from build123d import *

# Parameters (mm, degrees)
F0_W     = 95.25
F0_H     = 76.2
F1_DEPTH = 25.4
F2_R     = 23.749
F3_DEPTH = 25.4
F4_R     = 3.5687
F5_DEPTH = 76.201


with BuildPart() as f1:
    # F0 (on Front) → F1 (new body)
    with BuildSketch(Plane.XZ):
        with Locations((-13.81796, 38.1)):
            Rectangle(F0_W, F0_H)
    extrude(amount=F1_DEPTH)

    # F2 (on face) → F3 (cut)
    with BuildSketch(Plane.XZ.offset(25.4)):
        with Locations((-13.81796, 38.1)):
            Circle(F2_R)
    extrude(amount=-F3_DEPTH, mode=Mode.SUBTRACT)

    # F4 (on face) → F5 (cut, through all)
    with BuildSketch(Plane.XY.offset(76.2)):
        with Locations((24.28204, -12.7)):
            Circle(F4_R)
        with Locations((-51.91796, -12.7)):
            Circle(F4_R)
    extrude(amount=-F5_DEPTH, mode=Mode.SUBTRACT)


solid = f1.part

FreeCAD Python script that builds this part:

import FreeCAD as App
import Part
import Sketcher
Q = App.Units.Quantity


def add_polygon(sketch, points):
    """Adds a closed chain of lines whose ends are joined by coincident constraints."""
    first, n = sketch.GeometryCount, len(points)
    for a, b in zip(points, points[1:] + points[:1]):
        sketch.addGeometry(Part.LineSegment(App.Vector(*a, 0), App.Vector(*b, 0)), False)
    for i in range(n):
        sketch.addConstraint(Sketcher.Constraint("Coincident", first + i, 2, first + (i + 1) % n, 1))

doc = App.newDocument("Part")
body = doc.addObject("PartDesign::Body", "Body")

# Sketch on XZ plane
sketch1 = body.newObject("Sketcher::SketchObject", "Sketch")
sketch1.AttachmentSupport = (doc.getObject("XZ_Plane"), [""])
sketch1.MapMode = "FlatFace"
add_polygon(sketch1, [(-61, 76), (-61, 0), (34, 0), (34, 76)])  # lines 0-3
sketch1.addConstraint(Sketcher.Constraint("Vertical", 0))
sketch1.addConstraint(Sketcher.Constraint("Horizontal", 1))
sketch1.addConstraint(Sketcher.Constraint("Vertical", 2))
sketch1.addConstraint(Sketcher.Constraint("Horizontal", 3))
sketch1.addConstraint(Sketcher.Constraint("PointOnObject", 0, 2, -1))
sketch1.addConstraint(Sketcher.Constraint("DistanceY", 0, 2, 0, 1, Q("3 in")))
sketch1.addConstraint(Sketcher.Constraint("DistanceX", 1, 1, 1, 2, Q("3.75 in")))
sketch1.addConstraint(Sketcher.Constraint("DistanceX", 0, 2, -1, 1, 61.44296))
pad1 = body.newObject("PartDesign::Pad", "Pad")
pad1.Profile = sketch1
pad1.Length = Q("1 in")

# Sketch on XZ plane
sketch2 = body.newObject("Sketcher::SketchObject", "Sketch001")
sketch2.AttachmentSupport = (doc.getObject("XZ_Plane"), [""])
sketch2.MapMode = "FlatFace"
sketch2.AttachmentOffset = App.Placement(App.Vector(0, 0, 1 * 25.4), App.Rotation())
sketch2.addGeometry(Part.Circle(App.Vector(-14, 38, 0), App.Vector(0, 0, 1), 24), False)
sketch2.addConstraint(Sketcher.Constraint("Diameter", 0, Q("1.87 in")))
sketch2.addConstraint(Sketcher.Constraint("DistanceY", -1, 1, 0, 3, Q("1.5 in")))
sketch2.addConstraint(Sketcher.Constraint("DistanceX", 0, 3, -1, 1, 13.81796))
pocket1 = body.newObject("PartDesign::Pocket", "Pocket")
pocket1.Profile = sketch2
pocket1.Length = Q("1 in")

# Sketch on XY plane
sketch3 = body.newObject("Sketcher::SketchObject", "Sketch002")
sketch3.AttachmentSupport = (doc.getObject("XY_Plane"), [""])
sketch3.MapMode = "FlatFace"
sketch3.AttachmentOffset = App.Placement(App.Vector(0, 0, 3 * 25.4), App.Rotation())
sketch3.addGeometry(Part.Circle(App.Vector(24.3, -12.7, 0), App.Vector(0, 0, 1), 3.6), False)
sketch3.addGeometry(Part.Circle(App.Vector(-51.9, -12.7, 0), App.Vector(0, 0, 1), 3.6), False)
sketch3.addConstraint(Sketcher.Constraint("Equal", 0, 1))
sketch3.addConstraint(Sketcher.Constraint("Horizontal", 0, 3, 1, 3))
sketch3.addConstraint(Sketcher.Constraint("Diameter", 0, Q("0.281 in")))
sketch3.addConstraint(Sketcher.Constraint("DistanceX", 1, 3, 0, 3, Q("3 in")))
sketch3.addConstraint(Sketcher.Constraint("DistanceY", 0, 3, -1, 1, Q("0.5 in")))
sketch3.addConstraint(Sketcher.Constraint("DistanceX", -1, 1, 0, 3, 24.28204))
pocket2 = body.newObject("PartDesign::Pocket", "Pocket001")
pocket2.Profile = sketch3
pocket2.Type = "ThroughAll"

doc.recompute()
